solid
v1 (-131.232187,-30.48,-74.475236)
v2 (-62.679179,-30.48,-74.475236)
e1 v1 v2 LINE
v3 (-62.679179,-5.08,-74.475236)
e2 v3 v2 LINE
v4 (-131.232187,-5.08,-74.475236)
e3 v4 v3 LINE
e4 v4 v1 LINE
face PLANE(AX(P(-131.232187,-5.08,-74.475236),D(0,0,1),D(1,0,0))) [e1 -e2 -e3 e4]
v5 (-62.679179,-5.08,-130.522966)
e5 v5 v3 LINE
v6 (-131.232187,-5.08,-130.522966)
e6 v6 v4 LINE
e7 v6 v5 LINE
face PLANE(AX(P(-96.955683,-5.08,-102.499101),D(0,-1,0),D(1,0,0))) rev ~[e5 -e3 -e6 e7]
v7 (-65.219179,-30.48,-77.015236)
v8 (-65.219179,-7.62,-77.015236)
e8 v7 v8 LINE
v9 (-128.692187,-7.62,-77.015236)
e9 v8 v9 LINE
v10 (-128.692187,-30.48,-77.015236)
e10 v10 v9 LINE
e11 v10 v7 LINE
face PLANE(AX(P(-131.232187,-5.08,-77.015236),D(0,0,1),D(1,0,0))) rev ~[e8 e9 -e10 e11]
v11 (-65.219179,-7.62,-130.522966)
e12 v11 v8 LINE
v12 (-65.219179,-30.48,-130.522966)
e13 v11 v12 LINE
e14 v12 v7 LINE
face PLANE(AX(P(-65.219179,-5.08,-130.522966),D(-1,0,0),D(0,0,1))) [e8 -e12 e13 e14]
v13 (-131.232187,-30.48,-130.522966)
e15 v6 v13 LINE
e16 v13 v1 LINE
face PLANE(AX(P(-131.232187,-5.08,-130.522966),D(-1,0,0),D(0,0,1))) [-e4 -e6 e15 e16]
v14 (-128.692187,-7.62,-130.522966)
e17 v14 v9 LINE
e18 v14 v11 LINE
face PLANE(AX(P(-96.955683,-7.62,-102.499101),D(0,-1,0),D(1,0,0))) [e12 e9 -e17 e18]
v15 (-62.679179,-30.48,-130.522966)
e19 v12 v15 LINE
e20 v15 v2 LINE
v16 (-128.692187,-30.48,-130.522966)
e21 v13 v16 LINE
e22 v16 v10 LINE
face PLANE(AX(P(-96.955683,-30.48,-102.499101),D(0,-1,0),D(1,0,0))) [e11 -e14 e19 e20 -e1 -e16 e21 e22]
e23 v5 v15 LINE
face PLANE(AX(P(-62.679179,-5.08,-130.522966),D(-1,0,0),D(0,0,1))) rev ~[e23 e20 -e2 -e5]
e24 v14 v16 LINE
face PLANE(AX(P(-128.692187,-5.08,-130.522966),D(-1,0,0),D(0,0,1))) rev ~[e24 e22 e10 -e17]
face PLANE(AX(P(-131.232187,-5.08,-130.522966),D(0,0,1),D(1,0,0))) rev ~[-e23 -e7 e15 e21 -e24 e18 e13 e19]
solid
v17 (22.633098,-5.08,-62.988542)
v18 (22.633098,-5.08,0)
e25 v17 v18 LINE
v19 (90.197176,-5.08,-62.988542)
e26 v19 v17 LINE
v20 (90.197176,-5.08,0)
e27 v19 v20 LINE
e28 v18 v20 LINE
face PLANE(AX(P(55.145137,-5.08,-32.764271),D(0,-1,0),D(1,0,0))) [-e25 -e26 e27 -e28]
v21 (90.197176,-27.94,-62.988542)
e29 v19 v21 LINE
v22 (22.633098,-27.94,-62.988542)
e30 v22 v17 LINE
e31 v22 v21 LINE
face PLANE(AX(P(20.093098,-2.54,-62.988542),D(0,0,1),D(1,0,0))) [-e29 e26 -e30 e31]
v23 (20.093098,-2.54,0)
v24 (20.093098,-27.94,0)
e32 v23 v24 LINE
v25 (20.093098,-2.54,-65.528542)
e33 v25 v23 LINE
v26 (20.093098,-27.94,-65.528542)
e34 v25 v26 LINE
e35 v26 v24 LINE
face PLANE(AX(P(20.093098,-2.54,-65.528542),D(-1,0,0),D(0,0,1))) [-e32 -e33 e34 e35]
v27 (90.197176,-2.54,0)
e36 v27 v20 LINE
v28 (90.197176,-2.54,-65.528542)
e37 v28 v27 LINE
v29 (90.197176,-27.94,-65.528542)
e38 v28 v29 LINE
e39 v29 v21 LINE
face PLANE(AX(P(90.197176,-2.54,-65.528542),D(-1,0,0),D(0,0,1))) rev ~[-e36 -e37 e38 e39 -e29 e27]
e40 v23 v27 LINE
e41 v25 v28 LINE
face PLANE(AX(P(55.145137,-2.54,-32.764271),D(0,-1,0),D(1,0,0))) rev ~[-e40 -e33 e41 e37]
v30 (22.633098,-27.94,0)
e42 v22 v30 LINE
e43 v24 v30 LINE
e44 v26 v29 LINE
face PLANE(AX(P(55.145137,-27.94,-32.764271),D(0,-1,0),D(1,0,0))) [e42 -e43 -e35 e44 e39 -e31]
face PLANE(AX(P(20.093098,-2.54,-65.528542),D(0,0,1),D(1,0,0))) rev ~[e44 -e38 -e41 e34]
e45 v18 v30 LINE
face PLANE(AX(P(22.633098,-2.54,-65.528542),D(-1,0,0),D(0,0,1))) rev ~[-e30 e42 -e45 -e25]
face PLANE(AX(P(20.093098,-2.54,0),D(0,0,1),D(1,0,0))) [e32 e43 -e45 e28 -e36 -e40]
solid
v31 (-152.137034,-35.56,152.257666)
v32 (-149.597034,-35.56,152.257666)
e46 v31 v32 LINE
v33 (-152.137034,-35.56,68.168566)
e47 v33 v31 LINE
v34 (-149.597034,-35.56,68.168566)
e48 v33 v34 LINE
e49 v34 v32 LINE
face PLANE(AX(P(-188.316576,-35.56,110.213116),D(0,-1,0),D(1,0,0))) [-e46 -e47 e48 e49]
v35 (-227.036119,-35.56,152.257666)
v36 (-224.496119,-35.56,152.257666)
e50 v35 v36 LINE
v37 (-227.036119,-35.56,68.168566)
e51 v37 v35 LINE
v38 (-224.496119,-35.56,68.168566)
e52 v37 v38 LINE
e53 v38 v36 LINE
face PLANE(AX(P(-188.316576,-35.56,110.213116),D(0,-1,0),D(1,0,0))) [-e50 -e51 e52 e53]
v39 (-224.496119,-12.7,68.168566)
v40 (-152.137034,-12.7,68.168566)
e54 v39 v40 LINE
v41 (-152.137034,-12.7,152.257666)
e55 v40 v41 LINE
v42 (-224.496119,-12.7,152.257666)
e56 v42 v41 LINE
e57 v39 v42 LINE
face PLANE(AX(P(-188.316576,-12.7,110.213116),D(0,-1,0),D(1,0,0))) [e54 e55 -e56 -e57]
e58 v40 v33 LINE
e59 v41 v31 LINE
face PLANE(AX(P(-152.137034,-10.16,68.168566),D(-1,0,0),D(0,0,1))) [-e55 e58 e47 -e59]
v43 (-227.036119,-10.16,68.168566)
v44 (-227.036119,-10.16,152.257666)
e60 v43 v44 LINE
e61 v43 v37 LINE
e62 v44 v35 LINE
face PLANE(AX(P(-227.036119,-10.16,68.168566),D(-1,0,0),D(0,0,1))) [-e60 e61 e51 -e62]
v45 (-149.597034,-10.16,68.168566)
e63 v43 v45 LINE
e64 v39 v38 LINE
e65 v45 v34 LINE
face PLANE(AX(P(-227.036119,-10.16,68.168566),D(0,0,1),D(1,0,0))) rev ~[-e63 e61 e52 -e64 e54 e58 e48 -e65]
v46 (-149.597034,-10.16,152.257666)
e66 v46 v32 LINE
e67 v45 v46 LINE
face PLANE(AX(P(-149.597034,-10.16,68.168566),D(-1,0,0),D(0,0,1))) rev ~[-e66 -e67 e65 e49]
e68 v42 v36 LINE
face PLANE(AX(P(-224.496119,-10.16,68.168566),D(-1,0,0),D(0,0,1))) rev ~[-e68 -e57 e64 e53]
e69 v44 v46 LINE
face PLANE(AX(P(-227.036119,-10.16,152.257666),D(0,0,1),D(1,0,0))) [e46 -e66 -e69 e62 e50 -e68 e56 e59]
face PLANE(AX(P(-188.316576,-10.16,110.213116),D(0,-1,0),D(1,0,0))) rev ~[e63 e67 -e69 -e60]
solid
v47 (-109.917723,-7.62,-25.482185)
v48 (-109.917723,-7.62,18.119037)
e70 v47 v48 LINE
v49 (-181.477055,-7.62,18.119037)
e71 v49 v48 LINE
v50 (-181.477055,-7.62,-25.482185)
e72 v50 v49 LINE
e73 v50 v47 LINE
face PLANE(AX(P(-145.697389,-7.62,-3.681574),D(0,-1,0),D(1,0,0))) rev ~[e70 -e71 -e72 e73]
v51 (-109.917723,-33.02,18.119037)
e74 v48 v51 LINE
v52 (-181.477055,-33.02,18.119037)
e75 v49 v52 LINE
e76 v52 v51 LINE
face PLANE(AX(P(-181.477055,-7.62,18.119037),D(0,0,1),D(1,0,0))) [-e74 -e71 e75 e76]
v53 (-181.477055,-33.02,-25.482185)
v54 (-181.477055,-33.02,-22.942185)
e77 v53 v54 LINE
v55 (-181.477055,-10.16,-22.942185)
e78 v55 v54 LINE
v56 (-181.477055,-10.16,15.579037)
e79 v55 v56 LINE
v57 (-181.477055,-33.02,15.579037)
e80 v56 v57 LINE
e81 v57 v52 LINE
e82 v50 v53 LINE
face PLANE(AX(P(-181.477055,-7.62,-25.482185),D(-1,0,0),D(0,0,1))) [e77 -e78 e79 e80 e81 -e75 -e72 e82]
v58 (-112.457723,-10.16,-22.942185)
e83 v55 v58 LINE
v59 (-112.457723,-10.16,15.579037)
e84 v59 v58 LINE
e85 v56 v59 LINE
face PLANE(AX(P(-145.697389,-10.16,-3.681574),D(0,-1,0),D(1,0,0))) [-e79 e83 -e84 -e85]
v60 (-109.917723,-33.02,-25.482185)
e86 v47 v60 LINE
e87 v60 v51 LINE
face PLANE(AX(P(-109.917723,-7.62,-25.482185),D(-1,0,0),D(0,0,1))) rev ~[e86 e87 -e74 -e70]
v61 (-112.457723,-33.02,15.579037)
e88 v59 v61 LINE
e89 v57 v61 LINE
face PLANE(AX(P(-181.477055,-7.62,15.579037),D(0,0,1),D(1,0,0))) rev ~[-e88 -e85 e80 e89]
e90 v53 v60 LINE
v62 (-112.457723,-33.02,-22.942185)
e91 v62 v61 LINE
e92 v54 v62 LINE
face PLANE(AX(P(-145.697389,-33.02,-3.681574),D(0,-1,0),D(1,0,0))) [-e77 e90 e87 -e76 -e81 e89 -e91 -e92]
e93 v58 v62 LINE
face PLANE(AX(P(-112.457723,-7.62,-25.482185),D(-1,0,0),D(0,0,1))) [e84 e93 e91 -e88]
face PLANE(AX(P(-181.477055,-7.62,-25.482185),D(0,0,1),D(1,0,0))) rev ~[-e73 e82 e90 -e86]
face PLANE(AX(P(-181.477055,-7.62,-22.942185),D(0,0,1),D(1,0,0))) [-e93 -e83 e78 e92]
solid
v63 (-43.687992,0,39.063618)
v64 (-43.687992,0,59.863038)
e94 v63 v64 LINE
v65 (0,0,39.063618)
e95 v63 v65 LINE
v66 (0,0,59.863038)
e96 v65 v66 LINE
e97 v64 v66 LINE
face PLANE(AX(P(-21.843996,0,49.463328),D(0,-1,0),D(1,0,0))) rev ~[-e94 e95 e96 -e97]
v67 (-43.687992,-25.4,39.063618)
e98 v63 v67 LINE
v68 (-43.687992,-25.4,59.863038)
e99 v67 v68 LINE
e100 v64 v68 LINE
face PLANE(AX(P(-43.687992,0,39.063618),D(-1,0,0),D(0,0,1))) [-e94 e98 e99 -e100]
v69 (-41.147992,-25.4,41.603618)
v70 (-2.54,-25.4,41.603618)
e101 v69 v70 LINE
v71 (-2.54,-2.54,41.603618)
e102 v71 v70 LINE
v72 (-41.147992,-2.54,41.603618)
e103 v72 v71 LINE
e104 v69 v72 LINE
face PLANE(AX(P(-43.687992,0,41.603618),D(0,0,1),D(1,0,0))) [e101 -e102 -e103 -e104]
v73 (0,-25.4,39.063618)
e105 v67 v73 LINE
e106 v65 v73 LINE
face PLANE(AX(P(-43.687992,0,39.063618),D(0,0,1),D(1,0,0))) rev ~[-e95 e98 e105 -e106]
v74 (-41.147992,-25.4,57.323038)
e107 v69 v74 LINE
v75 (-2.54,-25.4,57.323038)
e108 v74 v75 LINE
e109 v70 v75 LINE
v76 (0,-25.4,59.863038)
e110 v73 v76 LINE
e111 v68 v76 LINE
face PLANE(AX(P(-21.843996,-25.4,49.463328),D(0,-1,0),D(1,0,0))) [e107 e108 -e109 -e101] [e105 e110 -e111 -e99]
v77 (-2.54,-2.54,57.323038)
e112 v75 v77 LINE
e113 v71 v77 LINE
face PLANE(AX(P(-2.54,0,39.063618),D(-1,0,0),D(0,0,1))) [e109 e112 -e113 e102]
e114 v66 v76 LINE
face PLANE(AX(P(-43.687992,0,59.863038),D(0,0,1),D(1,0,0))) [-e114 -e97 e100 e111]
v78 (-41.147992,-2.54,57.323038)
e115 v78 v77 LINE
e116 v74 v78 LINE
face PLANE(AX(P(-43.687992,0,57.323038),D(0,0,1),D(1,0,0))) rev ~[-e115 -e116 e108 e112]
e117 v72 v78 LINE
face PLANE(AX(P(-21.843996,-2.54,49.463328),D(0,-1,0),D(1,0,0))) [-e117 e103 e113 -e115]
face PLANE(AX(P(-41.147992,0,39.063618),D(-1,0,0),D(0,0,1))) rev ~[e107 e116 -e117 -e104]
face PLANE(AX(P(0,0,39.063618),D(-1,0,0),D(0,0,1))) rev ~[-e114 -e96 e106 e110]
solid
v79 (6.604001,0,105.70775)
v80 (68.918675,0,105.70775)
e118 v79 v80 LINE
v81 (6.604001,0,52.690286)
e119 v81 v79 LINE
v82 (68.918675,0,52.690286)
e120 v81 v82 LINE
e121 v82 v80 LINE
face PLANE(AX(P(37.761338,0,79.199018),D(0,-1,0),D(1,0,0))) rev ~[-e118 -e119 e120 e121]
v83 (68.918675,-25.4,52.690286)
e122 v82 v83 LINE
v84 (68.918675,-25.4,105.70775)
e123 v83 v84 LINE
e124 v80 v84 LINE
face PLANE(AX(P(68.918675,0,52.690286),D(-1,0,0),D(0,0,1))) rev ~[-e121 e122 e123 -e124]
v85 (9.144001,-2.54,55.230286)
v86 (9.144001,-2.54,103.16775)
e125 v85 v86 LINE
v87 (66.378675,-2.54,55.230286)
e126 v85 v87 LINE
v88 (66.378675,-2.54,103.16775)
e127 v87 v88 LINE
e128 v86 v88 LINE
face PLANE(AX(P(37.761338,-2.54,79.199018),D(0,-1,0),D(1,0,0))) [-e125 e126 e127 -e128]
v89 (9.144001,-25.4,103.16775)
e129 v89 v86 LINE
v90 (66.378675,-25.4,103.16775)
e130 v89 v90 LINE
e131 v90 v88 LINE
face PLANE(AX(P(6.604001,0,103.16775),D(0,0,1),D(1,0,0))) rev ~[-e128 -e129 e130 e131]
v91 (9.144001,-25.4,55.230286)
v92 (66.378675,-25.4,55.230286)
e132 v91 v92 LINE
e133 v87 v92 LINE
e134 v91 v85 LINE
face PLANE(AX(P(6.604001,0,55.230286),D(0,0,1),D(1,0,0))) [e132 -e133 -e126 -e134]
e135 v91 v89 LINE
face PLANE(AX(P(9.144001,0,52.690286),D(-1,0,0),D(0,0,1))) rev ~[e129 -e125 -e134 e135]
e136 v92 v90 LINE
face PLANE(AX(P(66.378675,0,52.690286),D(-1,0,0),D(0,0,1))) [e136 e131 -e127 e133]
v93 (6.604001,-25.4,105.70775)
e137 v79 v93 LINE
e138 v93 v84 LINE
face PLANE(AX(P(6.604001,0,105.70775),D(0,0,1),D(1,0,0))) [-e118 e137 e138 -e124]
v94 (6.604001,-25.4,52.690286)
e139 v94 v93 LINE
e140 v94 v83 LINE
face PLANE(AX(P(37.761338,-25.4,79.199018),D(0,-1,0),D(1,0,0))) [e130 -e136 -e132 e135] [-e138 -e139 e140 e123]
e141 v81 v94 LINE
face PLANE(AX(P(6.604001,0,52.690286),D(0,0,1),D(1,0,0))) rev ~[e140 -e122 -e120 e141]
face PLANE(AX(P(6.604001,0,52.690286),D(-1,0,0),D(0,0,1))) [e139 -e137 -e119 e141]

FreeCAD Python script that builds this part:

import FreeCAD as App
import Part
import Sketcher
from FreeCAD import Vector
Q = App.Units.Quantity


def faces_at(feature, points):
    """Names of the faces that lie closest to the given points."""
    faces = feature.Shape.Faces
    near = lambda p: min(range(len(faces)), key=lambda i: faces[i].distToShape(Part.Vertex(*p))[0])
    return sorted({f"Face{near(p) + 1}" for p in points})


def add_polygon(sketch, points):
    """Adds a closed chain of lines whose ends are joined by coincident constraints."""
    first, n = sketch.GeometryCount, len(points)
    for a, b in zip(points, points[1:] + points[:1]):
        sketch.addGeometry(Part.LineSegment(App.Vector(*a, 0), App.Vector(*b, 0)), False)
    for i in range(n):
        sketch.addConstraint(Sketcher.Constraint("Coincident", first + i, 2, first + (i + 1) % n, 1))

doc = App.newDocument("Part")
body = doc.addObject("PartDesign::Body", "Body")

# Sketch on XZ plane
sketch1 = body.newObject("Sketcher::SketchObject", "Sketch")
sketch1.AttachmentSupport = (doc.getObject("XZ_Plane"), [""])
sketch1.MapMode = "FlatFace"
add_polygon(sketch1, [(-44, 60), (-44, 39), (0, 39), (0, 60)])  # lines 0-3
sketch1.addConstraint(Sketcher.Constraint("Vertical", 0))
sketch1.addConstraint(Sketcher.Constraint("Horizontal", 1))
sketch1.addConstraint(Sketcher.Constraint("Vertical", 2))
sketch1.addConstraint(Sketcher.Constraint("Horizontal", 3))
sketch1.addConstraint(Sketcher.Constraint("PointOnObject", 1, 2, -2))
sketch1.addConstraint(Sketcher.Constraint("DistanceX", 1, 1, 1, 2, Q("43.687992 mm")))
sketch1.addConstraint(Sketcher.Constraint("DistanceY", 0, 2, 0, 1, Q("20.799421 mm")))
sketch1.addConstraint(Sketcher.Constraint("DistanceY", -1, 1, 2, 2, Q("59.863038 mm")))
pad1 = body.newObject("PartDesign::Pad", "Pad")
pad1.Profile = sketch1
pad1.Length = Q("1 in")
doc.recompute()

thickness = body.newObject("PartDesign::Thickness", "Thickness")
thickness.Base = (pad1, faces_at(pad1, [(-21.844, -25.4, 49.463)]))
thickness.Value = Q("0.1 in")
thickness.Reversed = True
thickness.Join = "Arc"
body2 = doc.addObject("PartDesign::Body", "Body001")

# Sketch on XZ plane
sketch2 = body2.newObject("Sketcher::SketchObject", "Sketch001")
sketch2.AttachmentSupport = (doc.getObject("XZ_Plane001"), [""])
sketch2.MapMode = "FlatFace"
add_polygon(sketch2, [(7, 106), (7, 53), (69, 53), (69, 106)])  # lines 0-3
sketch2.addConstraint(Sketcher.Constraint("Vertical", 0))
sketch2.addConstraint(Sketcher.Constraint("Horizontal", 1))
sketch2.addConstraint(Sketcher.Constraint("Vertical", 2))
sketch2.addConstraint(Sketcher.Constraint("Horizontal", 3))
sketch2.addConstraint(Sketcher.Constraint("DistanceX", -1, 1, 0, 2, Q("0.26 in")))
sketch2.addConstraint(Sketcher.Constraint("DistanceX", 1, 1, 1, 2, Q("62.314674 mm")))
sketch2.addConstraint(Sketcher.Constraint("DistanceY", 0, 2, 0, 1, Q("53.017464 mm")))
sketch2.addConstraint(Sketcher.Constraint("DistanceY", -1, 1, 2, 2, Q("105.70775 mm")))
pad2 = body2.newObject("PartDesign::Pad", "Pad001")
pad2.Profile = sketch2
pad2.Length = Q("1 in")
doc.recompute()

thickness2 = body2.newObject("PartDesign::Thickness", "Thickness001")
thickness2.Base = (pad2, faces_at(pad2, [(37.761, -25.4, 79.199)]))
thickness2.Value = Q("0.1 in")
thickness2.Reversed = True
thickness2.Join = "Arc"
body3 = doc.addObject("PartDesign::Body", "Body002")

# Sketch on XZ plane
sketch3 = body3.newObject("Sketcher::SketchObject", "Sketch002")
sketch3.AttachmentSupport = (doc.getObject("XZ_Plane002"), [""])
sketch3.MapMode = "FlatFace"
sketch3.AttachmentOffset = App.Placement(Vector(0, 0, 0.1 * 25.4), App.Rotation())
add_polygon(sketch3, [(20, 0), (20, -66), (90, -66), (90, 0)])  # lines 0-3
sketch3.addConstraint(Sketcher.Constraint("Vertical", 0))
sketch3.addConstraint(Sketcher.Constraint("Horizontal", 1))
sketch3.addConstraint(Sketcher.Constraint("Vertical", 2))
sketch3.addConstraint(Sketcher.Constraint("Horizontal", 3))
sketch3.addConstraint(Sketcher.Constraint("PointOnObject", 2, 2, -1))
sketch3.addConstraint(Sketcher.Constraint("DistanceY", 0, 2, 0, 1, Q("65.528542 mm")))
sketch3.addConstraint(Sketcher.Constraint("DistanceX", -1, 1, 0, 2, Q("20.093098 mm")))
sketch3.addConstraint(Sketcher.Constraint("DistanceX", 1, 1, 1, 2, Q("70.104077 mm")))
pad3 = body3.newObject("PartDesign::Pad", "Pad002")
pad3.Profile = sketch3
pad3.Length = Q("1 in")
doc.recompute()

thickness3 = body3.newObject("PartDesign::Thickness", "Thickness002")
thickness3.Base = (pad3, faces_at(pad3, [(90.197, -15.24, -32.764), (55.145, -15.24, 0), (55.145, -27.94, -32.764)]))
thickness3.Value = Q("0.1 in")
thickness3.Reversed = True
thickness3.Join = "Arc"
body4 = doc.addObject("PartDesign::Body", "Body003")

# Sketch on XZ plane
sketch4 = body4.newObject("Sketcher::SketchObject", "Sketch003")
sketch4.AttachmentSupport = (doc.getObject("XZ_Plane003"), [""])
sketch4.MapMode = "FlatFace"
sketch4.AttachmentOffset = App.Placement(Vector(0, 0, 0.2 * 25.4), App.Rotation())
add_polygon(sketch4, [(-131, -74), (-131, -131), (-63, -131), (-63, -74)])  # lines 0-3
sketch4.addConstraint(Sketcher.Constraint("Vertical", 0))
sketch4.addConstraint(Sketcher.Constraint("Horizontal", 1))
sketch4.addConstraint(Sketcher.Constraint("Vertical", 2))
sketch4.addConstraint(Sketcher.Constraint("Horizontal", 3))
sketch4.addConstraint(Sketcher.Constraint("DistanceX", 1, 1, 1, 2, Q("68.553008 mm")))
sketch4.addConstraint(Sketcher.Constraint("DistanceY", 0, 2, 0, 1, Q("56.04773 mm")))
sketch4.addConstraint(Sketcher.Constraint("DistanceX", 1, 2, -1, 1, Q("62.679179 mm")))
sketch4.addConstraint(Sketcher.Constraint("DistanceY", 0, 2, -1, 1, Q("130.522966 mm")))
pad4 = body4.newObject("PartDesign::Pad", "Pad003")
pad4.Profile = sketch4
pad4.Length = Q("1 in")
doc.recompute()

thickness4 = body4.newObject("PartDesign::Thickness", "Thickness003")
thickness4.Base = (pad4, faces_at(pad4, [(-96.956, -30.48, -102.499), (-96.956, -17.78, -130.523)]))
thickness4.Value = Q("0.1 in")
thickness4.Reversed = True
thickness4.Join = "Arc"
body5 = doc.addObject("PartDesign::Body", "Body004")

# Sketch on XZ plane
sketch5 = body5.newObject("Sketcher::SketchObject", "Sketch004")
sketch5.AttachmentSupport = (doc.getObject("XZ_Plane004"), [""])
sketch5.MapMode = "FlatFace"
sketch5.AttachmentOffset = App.Placement(Vector(0, 0, 0.3 * 25.4), App.Rotation())
add_polygon(sketch5, [(-181, 18), (-181, -25), (-110, -25), (-110, 18)])  # lines 0-3
sketch5.addConstraint(Sketcher.Constraint("Vertical", 0))
sketch5.addConstraint(Sketcher.Constraint("Horizontal", 1))
sketch5.addConstraint(Sketcher.Constraint("Vertical", 2))
sketch5.addConstraint(Sketcher.Constraint("Horizontal", 3))
sketch5.addConstraint(Sketcher.Constraint("DistanceX", 1, 1, 1, 2, Q("71.559332 mm")))
sketch5.addConstraint(Sketcher.Constraint("DistanceY", 0, 2, 0, 1, Q("43.601222 mm")))
sketch5.addConstraint(Sketcher.Constraint("DistanceX", 0, 2, -1, 1, Q("181.477055 mm")))
sketch5.addConstraint(Sketcher.Constraint("DistanceY", 0, 2, -1, 1, Q("25.482185 mm")))
pad5 = body5.newObject("PartDesign::Pad", "Pad004")
pad5.Profile = sketch5
pad5.Length = Q("1 in")
doc.recompute()

thickness5 = body5.newObject("PartDesign::Thickness", "Thickness004")
thickness5.Base = (pad5, faces_at(pad5, [(-181.477, -20.32, -3.682), (-145.697, -33.02, -3.682)]))
thickness5.Value = Q("0.1 in")
thickness5.Reversed = True
thickness5.Join = "Arc"
body6 = doc.addObject("PartDesign::Body", "Body005")

# Sketch on XZ plane
sketch6 = body6.newObject("Sketcher::SketchObject", "Sketch005")
sketch6.AttachmentSupport = (doc.getObject("XZ_Plane005"), [""])
sketch6.MapMode = "FlatFace"
sketch6.AttachmentOffset = App.Placement(Vector(0, 0, 0.4 * 25.4), App.Rotation())
add_polygon(sketch6, [(-227, 152), (-227, 68), (-150, 68), (-150, 152)])  # lines 0-3
sketch6.addConstraint(Sketcher.Constraint("Vertical", 0))
sketch6.addConstraint(Sketcher.Constraint("Horizontal", 1))
sketch6.addConstraint(Sketcher.Constraint("Vertical", 2))
sketch6.addConstraint(Sketcher.Constraint("Horizontal", 3))
sketch6.addConstraint(Sketcher.Constraint("DistanceY", 0, 2, 0, 1, Q("84.0891 mm")))
sketch6.addConstraint(Sketcher.Constraint("DistanceX", 1, 1, 1, 2, Q("77.439085 mm")))
sketch6.addConstraint(Sketcher.Constraint("DistanceX", 0, 2, -1, 1, Q("227.036119 mm")))
sketch6.addConstraint(Sketcher.Constraint("DistanceY", -1, 1, 0, 2, Q("68.168566 mm")))
pad6 = body6.newObject("PartDesign::Pad", "Pad005")
pad6.Profile = sketch6
pad6.Length = Q("1 in")
doc.recompute()

thickness6 = body6.newObject("PartDesign::Thickness", "Thickness005")
thickness6.Base = (pad6, faces_at(pad6, [(-188.317, -35.56, 110.213), (-188.317, -22.86, 68.169), (-188.317, -22.86, 152.258)]))
thickness6.Value = Q("0.1 in")
thickness6.Reversed = True
thickness6.Join = "Arc"

doc.recompute()
